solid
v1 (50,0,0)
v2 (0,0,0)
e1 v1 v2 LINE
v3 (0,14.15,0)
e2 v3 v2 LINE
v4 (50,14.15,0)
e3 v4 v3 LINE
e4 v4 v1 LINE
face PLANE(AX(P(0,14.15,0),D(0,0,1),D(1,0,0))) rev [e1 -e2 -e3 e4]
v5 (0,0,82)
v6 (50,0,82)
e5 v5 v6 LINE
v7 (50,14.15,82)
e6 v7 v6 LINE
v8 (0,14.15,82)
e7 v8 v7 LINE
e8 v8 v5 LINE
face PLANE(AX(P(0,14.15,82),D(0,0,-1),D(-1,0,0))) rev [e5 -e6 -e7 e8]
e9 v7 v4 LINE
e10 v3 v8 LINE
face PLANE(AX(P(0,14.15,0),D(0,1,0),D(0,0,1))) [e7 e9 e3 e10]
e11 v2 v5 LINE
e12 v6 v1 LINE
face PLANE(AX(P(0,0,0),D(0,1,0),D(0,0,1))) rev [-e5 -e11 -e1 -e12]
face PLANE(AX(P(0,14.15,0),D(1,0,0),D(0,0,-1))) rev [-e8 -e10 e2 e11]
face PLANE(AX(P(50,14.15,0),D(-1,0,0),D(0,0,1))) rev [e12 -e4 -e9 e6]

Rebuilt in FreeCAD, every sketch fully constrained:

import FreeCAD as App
import Part
import Sketcher

doc = App.newDocument("Part")
body = doc.addObject("PartDesign::Body", "Body")

# Sketch on XZ plane
sketch1 = doc.addObject("Sketcher::SketchObject", "Sketch")
body.addObject(sketch1)
sketch1.AttachmentSupport = (doc.XZ_Plane, [""])
sketch1.MapMode = "FlatFace"
sketch1.addGeometry(Part.LineSegment(App.Vector(0, 0, 0), App.Vector(0, 82, 0)), False)
sketch1.addGeometry(Part.LineSegment(App.Vector(0, 82, 0), App.Vector(50, 82, 0)), False)
sketch1.addGeometry(Part.LineSegment(App.Vector(50, 82, 0), App.Vector(50, 0, 0)), False)
sketch1.addGeometry(Part.LineSegment(App.Vector(50, 0, 0), App.Vector(0, 0, 0)), False)
sketch1.addConstraint(Sketcher.Constraint("Coincident", 0, 2, 1, 1))
sketch1.addConstraint(Sketcher.Constraint("Coincident", 1, 2, 2, 1))
sketch1.addConstraint(Sketcher.Constraint("Coincident", 2, 2, 3, 1))
sketch1.addConstraint(Sketcher.Constraint("Coincident", 3, 2, 0, 1))
sketch1.addConstraint(Sketcher.Constraint("Vertical", 0))
sketch1.addConstraint(Sketcher.Constraint("Horizontal", 1))
sketch1.addConstraint(Sketcher.Constraint("Vertical", 2))
sketch1.addConstraint(Sketcher.Constraint("Horizontal", 3))
sketch1.addConstraint(Sketcher.Constraint("Coincident", 3, 2, -1, 1))
sketch1.addConstraint(Sketcher.Constraint("DistanceX", 1, 1, 1, 2, 50.0))
sketch1.addConstraint(Sketcher.Constraint("DistanceY", 0, 1, 0, 2, 82.0))
pad1 = doc.addObject("PartDesign::Pad", "Pad")
body.addObject(pad1)
pad1.Profile = sketch1
pad1.Length = 14.15
pad1.Reversed = True

doc.recompute()
